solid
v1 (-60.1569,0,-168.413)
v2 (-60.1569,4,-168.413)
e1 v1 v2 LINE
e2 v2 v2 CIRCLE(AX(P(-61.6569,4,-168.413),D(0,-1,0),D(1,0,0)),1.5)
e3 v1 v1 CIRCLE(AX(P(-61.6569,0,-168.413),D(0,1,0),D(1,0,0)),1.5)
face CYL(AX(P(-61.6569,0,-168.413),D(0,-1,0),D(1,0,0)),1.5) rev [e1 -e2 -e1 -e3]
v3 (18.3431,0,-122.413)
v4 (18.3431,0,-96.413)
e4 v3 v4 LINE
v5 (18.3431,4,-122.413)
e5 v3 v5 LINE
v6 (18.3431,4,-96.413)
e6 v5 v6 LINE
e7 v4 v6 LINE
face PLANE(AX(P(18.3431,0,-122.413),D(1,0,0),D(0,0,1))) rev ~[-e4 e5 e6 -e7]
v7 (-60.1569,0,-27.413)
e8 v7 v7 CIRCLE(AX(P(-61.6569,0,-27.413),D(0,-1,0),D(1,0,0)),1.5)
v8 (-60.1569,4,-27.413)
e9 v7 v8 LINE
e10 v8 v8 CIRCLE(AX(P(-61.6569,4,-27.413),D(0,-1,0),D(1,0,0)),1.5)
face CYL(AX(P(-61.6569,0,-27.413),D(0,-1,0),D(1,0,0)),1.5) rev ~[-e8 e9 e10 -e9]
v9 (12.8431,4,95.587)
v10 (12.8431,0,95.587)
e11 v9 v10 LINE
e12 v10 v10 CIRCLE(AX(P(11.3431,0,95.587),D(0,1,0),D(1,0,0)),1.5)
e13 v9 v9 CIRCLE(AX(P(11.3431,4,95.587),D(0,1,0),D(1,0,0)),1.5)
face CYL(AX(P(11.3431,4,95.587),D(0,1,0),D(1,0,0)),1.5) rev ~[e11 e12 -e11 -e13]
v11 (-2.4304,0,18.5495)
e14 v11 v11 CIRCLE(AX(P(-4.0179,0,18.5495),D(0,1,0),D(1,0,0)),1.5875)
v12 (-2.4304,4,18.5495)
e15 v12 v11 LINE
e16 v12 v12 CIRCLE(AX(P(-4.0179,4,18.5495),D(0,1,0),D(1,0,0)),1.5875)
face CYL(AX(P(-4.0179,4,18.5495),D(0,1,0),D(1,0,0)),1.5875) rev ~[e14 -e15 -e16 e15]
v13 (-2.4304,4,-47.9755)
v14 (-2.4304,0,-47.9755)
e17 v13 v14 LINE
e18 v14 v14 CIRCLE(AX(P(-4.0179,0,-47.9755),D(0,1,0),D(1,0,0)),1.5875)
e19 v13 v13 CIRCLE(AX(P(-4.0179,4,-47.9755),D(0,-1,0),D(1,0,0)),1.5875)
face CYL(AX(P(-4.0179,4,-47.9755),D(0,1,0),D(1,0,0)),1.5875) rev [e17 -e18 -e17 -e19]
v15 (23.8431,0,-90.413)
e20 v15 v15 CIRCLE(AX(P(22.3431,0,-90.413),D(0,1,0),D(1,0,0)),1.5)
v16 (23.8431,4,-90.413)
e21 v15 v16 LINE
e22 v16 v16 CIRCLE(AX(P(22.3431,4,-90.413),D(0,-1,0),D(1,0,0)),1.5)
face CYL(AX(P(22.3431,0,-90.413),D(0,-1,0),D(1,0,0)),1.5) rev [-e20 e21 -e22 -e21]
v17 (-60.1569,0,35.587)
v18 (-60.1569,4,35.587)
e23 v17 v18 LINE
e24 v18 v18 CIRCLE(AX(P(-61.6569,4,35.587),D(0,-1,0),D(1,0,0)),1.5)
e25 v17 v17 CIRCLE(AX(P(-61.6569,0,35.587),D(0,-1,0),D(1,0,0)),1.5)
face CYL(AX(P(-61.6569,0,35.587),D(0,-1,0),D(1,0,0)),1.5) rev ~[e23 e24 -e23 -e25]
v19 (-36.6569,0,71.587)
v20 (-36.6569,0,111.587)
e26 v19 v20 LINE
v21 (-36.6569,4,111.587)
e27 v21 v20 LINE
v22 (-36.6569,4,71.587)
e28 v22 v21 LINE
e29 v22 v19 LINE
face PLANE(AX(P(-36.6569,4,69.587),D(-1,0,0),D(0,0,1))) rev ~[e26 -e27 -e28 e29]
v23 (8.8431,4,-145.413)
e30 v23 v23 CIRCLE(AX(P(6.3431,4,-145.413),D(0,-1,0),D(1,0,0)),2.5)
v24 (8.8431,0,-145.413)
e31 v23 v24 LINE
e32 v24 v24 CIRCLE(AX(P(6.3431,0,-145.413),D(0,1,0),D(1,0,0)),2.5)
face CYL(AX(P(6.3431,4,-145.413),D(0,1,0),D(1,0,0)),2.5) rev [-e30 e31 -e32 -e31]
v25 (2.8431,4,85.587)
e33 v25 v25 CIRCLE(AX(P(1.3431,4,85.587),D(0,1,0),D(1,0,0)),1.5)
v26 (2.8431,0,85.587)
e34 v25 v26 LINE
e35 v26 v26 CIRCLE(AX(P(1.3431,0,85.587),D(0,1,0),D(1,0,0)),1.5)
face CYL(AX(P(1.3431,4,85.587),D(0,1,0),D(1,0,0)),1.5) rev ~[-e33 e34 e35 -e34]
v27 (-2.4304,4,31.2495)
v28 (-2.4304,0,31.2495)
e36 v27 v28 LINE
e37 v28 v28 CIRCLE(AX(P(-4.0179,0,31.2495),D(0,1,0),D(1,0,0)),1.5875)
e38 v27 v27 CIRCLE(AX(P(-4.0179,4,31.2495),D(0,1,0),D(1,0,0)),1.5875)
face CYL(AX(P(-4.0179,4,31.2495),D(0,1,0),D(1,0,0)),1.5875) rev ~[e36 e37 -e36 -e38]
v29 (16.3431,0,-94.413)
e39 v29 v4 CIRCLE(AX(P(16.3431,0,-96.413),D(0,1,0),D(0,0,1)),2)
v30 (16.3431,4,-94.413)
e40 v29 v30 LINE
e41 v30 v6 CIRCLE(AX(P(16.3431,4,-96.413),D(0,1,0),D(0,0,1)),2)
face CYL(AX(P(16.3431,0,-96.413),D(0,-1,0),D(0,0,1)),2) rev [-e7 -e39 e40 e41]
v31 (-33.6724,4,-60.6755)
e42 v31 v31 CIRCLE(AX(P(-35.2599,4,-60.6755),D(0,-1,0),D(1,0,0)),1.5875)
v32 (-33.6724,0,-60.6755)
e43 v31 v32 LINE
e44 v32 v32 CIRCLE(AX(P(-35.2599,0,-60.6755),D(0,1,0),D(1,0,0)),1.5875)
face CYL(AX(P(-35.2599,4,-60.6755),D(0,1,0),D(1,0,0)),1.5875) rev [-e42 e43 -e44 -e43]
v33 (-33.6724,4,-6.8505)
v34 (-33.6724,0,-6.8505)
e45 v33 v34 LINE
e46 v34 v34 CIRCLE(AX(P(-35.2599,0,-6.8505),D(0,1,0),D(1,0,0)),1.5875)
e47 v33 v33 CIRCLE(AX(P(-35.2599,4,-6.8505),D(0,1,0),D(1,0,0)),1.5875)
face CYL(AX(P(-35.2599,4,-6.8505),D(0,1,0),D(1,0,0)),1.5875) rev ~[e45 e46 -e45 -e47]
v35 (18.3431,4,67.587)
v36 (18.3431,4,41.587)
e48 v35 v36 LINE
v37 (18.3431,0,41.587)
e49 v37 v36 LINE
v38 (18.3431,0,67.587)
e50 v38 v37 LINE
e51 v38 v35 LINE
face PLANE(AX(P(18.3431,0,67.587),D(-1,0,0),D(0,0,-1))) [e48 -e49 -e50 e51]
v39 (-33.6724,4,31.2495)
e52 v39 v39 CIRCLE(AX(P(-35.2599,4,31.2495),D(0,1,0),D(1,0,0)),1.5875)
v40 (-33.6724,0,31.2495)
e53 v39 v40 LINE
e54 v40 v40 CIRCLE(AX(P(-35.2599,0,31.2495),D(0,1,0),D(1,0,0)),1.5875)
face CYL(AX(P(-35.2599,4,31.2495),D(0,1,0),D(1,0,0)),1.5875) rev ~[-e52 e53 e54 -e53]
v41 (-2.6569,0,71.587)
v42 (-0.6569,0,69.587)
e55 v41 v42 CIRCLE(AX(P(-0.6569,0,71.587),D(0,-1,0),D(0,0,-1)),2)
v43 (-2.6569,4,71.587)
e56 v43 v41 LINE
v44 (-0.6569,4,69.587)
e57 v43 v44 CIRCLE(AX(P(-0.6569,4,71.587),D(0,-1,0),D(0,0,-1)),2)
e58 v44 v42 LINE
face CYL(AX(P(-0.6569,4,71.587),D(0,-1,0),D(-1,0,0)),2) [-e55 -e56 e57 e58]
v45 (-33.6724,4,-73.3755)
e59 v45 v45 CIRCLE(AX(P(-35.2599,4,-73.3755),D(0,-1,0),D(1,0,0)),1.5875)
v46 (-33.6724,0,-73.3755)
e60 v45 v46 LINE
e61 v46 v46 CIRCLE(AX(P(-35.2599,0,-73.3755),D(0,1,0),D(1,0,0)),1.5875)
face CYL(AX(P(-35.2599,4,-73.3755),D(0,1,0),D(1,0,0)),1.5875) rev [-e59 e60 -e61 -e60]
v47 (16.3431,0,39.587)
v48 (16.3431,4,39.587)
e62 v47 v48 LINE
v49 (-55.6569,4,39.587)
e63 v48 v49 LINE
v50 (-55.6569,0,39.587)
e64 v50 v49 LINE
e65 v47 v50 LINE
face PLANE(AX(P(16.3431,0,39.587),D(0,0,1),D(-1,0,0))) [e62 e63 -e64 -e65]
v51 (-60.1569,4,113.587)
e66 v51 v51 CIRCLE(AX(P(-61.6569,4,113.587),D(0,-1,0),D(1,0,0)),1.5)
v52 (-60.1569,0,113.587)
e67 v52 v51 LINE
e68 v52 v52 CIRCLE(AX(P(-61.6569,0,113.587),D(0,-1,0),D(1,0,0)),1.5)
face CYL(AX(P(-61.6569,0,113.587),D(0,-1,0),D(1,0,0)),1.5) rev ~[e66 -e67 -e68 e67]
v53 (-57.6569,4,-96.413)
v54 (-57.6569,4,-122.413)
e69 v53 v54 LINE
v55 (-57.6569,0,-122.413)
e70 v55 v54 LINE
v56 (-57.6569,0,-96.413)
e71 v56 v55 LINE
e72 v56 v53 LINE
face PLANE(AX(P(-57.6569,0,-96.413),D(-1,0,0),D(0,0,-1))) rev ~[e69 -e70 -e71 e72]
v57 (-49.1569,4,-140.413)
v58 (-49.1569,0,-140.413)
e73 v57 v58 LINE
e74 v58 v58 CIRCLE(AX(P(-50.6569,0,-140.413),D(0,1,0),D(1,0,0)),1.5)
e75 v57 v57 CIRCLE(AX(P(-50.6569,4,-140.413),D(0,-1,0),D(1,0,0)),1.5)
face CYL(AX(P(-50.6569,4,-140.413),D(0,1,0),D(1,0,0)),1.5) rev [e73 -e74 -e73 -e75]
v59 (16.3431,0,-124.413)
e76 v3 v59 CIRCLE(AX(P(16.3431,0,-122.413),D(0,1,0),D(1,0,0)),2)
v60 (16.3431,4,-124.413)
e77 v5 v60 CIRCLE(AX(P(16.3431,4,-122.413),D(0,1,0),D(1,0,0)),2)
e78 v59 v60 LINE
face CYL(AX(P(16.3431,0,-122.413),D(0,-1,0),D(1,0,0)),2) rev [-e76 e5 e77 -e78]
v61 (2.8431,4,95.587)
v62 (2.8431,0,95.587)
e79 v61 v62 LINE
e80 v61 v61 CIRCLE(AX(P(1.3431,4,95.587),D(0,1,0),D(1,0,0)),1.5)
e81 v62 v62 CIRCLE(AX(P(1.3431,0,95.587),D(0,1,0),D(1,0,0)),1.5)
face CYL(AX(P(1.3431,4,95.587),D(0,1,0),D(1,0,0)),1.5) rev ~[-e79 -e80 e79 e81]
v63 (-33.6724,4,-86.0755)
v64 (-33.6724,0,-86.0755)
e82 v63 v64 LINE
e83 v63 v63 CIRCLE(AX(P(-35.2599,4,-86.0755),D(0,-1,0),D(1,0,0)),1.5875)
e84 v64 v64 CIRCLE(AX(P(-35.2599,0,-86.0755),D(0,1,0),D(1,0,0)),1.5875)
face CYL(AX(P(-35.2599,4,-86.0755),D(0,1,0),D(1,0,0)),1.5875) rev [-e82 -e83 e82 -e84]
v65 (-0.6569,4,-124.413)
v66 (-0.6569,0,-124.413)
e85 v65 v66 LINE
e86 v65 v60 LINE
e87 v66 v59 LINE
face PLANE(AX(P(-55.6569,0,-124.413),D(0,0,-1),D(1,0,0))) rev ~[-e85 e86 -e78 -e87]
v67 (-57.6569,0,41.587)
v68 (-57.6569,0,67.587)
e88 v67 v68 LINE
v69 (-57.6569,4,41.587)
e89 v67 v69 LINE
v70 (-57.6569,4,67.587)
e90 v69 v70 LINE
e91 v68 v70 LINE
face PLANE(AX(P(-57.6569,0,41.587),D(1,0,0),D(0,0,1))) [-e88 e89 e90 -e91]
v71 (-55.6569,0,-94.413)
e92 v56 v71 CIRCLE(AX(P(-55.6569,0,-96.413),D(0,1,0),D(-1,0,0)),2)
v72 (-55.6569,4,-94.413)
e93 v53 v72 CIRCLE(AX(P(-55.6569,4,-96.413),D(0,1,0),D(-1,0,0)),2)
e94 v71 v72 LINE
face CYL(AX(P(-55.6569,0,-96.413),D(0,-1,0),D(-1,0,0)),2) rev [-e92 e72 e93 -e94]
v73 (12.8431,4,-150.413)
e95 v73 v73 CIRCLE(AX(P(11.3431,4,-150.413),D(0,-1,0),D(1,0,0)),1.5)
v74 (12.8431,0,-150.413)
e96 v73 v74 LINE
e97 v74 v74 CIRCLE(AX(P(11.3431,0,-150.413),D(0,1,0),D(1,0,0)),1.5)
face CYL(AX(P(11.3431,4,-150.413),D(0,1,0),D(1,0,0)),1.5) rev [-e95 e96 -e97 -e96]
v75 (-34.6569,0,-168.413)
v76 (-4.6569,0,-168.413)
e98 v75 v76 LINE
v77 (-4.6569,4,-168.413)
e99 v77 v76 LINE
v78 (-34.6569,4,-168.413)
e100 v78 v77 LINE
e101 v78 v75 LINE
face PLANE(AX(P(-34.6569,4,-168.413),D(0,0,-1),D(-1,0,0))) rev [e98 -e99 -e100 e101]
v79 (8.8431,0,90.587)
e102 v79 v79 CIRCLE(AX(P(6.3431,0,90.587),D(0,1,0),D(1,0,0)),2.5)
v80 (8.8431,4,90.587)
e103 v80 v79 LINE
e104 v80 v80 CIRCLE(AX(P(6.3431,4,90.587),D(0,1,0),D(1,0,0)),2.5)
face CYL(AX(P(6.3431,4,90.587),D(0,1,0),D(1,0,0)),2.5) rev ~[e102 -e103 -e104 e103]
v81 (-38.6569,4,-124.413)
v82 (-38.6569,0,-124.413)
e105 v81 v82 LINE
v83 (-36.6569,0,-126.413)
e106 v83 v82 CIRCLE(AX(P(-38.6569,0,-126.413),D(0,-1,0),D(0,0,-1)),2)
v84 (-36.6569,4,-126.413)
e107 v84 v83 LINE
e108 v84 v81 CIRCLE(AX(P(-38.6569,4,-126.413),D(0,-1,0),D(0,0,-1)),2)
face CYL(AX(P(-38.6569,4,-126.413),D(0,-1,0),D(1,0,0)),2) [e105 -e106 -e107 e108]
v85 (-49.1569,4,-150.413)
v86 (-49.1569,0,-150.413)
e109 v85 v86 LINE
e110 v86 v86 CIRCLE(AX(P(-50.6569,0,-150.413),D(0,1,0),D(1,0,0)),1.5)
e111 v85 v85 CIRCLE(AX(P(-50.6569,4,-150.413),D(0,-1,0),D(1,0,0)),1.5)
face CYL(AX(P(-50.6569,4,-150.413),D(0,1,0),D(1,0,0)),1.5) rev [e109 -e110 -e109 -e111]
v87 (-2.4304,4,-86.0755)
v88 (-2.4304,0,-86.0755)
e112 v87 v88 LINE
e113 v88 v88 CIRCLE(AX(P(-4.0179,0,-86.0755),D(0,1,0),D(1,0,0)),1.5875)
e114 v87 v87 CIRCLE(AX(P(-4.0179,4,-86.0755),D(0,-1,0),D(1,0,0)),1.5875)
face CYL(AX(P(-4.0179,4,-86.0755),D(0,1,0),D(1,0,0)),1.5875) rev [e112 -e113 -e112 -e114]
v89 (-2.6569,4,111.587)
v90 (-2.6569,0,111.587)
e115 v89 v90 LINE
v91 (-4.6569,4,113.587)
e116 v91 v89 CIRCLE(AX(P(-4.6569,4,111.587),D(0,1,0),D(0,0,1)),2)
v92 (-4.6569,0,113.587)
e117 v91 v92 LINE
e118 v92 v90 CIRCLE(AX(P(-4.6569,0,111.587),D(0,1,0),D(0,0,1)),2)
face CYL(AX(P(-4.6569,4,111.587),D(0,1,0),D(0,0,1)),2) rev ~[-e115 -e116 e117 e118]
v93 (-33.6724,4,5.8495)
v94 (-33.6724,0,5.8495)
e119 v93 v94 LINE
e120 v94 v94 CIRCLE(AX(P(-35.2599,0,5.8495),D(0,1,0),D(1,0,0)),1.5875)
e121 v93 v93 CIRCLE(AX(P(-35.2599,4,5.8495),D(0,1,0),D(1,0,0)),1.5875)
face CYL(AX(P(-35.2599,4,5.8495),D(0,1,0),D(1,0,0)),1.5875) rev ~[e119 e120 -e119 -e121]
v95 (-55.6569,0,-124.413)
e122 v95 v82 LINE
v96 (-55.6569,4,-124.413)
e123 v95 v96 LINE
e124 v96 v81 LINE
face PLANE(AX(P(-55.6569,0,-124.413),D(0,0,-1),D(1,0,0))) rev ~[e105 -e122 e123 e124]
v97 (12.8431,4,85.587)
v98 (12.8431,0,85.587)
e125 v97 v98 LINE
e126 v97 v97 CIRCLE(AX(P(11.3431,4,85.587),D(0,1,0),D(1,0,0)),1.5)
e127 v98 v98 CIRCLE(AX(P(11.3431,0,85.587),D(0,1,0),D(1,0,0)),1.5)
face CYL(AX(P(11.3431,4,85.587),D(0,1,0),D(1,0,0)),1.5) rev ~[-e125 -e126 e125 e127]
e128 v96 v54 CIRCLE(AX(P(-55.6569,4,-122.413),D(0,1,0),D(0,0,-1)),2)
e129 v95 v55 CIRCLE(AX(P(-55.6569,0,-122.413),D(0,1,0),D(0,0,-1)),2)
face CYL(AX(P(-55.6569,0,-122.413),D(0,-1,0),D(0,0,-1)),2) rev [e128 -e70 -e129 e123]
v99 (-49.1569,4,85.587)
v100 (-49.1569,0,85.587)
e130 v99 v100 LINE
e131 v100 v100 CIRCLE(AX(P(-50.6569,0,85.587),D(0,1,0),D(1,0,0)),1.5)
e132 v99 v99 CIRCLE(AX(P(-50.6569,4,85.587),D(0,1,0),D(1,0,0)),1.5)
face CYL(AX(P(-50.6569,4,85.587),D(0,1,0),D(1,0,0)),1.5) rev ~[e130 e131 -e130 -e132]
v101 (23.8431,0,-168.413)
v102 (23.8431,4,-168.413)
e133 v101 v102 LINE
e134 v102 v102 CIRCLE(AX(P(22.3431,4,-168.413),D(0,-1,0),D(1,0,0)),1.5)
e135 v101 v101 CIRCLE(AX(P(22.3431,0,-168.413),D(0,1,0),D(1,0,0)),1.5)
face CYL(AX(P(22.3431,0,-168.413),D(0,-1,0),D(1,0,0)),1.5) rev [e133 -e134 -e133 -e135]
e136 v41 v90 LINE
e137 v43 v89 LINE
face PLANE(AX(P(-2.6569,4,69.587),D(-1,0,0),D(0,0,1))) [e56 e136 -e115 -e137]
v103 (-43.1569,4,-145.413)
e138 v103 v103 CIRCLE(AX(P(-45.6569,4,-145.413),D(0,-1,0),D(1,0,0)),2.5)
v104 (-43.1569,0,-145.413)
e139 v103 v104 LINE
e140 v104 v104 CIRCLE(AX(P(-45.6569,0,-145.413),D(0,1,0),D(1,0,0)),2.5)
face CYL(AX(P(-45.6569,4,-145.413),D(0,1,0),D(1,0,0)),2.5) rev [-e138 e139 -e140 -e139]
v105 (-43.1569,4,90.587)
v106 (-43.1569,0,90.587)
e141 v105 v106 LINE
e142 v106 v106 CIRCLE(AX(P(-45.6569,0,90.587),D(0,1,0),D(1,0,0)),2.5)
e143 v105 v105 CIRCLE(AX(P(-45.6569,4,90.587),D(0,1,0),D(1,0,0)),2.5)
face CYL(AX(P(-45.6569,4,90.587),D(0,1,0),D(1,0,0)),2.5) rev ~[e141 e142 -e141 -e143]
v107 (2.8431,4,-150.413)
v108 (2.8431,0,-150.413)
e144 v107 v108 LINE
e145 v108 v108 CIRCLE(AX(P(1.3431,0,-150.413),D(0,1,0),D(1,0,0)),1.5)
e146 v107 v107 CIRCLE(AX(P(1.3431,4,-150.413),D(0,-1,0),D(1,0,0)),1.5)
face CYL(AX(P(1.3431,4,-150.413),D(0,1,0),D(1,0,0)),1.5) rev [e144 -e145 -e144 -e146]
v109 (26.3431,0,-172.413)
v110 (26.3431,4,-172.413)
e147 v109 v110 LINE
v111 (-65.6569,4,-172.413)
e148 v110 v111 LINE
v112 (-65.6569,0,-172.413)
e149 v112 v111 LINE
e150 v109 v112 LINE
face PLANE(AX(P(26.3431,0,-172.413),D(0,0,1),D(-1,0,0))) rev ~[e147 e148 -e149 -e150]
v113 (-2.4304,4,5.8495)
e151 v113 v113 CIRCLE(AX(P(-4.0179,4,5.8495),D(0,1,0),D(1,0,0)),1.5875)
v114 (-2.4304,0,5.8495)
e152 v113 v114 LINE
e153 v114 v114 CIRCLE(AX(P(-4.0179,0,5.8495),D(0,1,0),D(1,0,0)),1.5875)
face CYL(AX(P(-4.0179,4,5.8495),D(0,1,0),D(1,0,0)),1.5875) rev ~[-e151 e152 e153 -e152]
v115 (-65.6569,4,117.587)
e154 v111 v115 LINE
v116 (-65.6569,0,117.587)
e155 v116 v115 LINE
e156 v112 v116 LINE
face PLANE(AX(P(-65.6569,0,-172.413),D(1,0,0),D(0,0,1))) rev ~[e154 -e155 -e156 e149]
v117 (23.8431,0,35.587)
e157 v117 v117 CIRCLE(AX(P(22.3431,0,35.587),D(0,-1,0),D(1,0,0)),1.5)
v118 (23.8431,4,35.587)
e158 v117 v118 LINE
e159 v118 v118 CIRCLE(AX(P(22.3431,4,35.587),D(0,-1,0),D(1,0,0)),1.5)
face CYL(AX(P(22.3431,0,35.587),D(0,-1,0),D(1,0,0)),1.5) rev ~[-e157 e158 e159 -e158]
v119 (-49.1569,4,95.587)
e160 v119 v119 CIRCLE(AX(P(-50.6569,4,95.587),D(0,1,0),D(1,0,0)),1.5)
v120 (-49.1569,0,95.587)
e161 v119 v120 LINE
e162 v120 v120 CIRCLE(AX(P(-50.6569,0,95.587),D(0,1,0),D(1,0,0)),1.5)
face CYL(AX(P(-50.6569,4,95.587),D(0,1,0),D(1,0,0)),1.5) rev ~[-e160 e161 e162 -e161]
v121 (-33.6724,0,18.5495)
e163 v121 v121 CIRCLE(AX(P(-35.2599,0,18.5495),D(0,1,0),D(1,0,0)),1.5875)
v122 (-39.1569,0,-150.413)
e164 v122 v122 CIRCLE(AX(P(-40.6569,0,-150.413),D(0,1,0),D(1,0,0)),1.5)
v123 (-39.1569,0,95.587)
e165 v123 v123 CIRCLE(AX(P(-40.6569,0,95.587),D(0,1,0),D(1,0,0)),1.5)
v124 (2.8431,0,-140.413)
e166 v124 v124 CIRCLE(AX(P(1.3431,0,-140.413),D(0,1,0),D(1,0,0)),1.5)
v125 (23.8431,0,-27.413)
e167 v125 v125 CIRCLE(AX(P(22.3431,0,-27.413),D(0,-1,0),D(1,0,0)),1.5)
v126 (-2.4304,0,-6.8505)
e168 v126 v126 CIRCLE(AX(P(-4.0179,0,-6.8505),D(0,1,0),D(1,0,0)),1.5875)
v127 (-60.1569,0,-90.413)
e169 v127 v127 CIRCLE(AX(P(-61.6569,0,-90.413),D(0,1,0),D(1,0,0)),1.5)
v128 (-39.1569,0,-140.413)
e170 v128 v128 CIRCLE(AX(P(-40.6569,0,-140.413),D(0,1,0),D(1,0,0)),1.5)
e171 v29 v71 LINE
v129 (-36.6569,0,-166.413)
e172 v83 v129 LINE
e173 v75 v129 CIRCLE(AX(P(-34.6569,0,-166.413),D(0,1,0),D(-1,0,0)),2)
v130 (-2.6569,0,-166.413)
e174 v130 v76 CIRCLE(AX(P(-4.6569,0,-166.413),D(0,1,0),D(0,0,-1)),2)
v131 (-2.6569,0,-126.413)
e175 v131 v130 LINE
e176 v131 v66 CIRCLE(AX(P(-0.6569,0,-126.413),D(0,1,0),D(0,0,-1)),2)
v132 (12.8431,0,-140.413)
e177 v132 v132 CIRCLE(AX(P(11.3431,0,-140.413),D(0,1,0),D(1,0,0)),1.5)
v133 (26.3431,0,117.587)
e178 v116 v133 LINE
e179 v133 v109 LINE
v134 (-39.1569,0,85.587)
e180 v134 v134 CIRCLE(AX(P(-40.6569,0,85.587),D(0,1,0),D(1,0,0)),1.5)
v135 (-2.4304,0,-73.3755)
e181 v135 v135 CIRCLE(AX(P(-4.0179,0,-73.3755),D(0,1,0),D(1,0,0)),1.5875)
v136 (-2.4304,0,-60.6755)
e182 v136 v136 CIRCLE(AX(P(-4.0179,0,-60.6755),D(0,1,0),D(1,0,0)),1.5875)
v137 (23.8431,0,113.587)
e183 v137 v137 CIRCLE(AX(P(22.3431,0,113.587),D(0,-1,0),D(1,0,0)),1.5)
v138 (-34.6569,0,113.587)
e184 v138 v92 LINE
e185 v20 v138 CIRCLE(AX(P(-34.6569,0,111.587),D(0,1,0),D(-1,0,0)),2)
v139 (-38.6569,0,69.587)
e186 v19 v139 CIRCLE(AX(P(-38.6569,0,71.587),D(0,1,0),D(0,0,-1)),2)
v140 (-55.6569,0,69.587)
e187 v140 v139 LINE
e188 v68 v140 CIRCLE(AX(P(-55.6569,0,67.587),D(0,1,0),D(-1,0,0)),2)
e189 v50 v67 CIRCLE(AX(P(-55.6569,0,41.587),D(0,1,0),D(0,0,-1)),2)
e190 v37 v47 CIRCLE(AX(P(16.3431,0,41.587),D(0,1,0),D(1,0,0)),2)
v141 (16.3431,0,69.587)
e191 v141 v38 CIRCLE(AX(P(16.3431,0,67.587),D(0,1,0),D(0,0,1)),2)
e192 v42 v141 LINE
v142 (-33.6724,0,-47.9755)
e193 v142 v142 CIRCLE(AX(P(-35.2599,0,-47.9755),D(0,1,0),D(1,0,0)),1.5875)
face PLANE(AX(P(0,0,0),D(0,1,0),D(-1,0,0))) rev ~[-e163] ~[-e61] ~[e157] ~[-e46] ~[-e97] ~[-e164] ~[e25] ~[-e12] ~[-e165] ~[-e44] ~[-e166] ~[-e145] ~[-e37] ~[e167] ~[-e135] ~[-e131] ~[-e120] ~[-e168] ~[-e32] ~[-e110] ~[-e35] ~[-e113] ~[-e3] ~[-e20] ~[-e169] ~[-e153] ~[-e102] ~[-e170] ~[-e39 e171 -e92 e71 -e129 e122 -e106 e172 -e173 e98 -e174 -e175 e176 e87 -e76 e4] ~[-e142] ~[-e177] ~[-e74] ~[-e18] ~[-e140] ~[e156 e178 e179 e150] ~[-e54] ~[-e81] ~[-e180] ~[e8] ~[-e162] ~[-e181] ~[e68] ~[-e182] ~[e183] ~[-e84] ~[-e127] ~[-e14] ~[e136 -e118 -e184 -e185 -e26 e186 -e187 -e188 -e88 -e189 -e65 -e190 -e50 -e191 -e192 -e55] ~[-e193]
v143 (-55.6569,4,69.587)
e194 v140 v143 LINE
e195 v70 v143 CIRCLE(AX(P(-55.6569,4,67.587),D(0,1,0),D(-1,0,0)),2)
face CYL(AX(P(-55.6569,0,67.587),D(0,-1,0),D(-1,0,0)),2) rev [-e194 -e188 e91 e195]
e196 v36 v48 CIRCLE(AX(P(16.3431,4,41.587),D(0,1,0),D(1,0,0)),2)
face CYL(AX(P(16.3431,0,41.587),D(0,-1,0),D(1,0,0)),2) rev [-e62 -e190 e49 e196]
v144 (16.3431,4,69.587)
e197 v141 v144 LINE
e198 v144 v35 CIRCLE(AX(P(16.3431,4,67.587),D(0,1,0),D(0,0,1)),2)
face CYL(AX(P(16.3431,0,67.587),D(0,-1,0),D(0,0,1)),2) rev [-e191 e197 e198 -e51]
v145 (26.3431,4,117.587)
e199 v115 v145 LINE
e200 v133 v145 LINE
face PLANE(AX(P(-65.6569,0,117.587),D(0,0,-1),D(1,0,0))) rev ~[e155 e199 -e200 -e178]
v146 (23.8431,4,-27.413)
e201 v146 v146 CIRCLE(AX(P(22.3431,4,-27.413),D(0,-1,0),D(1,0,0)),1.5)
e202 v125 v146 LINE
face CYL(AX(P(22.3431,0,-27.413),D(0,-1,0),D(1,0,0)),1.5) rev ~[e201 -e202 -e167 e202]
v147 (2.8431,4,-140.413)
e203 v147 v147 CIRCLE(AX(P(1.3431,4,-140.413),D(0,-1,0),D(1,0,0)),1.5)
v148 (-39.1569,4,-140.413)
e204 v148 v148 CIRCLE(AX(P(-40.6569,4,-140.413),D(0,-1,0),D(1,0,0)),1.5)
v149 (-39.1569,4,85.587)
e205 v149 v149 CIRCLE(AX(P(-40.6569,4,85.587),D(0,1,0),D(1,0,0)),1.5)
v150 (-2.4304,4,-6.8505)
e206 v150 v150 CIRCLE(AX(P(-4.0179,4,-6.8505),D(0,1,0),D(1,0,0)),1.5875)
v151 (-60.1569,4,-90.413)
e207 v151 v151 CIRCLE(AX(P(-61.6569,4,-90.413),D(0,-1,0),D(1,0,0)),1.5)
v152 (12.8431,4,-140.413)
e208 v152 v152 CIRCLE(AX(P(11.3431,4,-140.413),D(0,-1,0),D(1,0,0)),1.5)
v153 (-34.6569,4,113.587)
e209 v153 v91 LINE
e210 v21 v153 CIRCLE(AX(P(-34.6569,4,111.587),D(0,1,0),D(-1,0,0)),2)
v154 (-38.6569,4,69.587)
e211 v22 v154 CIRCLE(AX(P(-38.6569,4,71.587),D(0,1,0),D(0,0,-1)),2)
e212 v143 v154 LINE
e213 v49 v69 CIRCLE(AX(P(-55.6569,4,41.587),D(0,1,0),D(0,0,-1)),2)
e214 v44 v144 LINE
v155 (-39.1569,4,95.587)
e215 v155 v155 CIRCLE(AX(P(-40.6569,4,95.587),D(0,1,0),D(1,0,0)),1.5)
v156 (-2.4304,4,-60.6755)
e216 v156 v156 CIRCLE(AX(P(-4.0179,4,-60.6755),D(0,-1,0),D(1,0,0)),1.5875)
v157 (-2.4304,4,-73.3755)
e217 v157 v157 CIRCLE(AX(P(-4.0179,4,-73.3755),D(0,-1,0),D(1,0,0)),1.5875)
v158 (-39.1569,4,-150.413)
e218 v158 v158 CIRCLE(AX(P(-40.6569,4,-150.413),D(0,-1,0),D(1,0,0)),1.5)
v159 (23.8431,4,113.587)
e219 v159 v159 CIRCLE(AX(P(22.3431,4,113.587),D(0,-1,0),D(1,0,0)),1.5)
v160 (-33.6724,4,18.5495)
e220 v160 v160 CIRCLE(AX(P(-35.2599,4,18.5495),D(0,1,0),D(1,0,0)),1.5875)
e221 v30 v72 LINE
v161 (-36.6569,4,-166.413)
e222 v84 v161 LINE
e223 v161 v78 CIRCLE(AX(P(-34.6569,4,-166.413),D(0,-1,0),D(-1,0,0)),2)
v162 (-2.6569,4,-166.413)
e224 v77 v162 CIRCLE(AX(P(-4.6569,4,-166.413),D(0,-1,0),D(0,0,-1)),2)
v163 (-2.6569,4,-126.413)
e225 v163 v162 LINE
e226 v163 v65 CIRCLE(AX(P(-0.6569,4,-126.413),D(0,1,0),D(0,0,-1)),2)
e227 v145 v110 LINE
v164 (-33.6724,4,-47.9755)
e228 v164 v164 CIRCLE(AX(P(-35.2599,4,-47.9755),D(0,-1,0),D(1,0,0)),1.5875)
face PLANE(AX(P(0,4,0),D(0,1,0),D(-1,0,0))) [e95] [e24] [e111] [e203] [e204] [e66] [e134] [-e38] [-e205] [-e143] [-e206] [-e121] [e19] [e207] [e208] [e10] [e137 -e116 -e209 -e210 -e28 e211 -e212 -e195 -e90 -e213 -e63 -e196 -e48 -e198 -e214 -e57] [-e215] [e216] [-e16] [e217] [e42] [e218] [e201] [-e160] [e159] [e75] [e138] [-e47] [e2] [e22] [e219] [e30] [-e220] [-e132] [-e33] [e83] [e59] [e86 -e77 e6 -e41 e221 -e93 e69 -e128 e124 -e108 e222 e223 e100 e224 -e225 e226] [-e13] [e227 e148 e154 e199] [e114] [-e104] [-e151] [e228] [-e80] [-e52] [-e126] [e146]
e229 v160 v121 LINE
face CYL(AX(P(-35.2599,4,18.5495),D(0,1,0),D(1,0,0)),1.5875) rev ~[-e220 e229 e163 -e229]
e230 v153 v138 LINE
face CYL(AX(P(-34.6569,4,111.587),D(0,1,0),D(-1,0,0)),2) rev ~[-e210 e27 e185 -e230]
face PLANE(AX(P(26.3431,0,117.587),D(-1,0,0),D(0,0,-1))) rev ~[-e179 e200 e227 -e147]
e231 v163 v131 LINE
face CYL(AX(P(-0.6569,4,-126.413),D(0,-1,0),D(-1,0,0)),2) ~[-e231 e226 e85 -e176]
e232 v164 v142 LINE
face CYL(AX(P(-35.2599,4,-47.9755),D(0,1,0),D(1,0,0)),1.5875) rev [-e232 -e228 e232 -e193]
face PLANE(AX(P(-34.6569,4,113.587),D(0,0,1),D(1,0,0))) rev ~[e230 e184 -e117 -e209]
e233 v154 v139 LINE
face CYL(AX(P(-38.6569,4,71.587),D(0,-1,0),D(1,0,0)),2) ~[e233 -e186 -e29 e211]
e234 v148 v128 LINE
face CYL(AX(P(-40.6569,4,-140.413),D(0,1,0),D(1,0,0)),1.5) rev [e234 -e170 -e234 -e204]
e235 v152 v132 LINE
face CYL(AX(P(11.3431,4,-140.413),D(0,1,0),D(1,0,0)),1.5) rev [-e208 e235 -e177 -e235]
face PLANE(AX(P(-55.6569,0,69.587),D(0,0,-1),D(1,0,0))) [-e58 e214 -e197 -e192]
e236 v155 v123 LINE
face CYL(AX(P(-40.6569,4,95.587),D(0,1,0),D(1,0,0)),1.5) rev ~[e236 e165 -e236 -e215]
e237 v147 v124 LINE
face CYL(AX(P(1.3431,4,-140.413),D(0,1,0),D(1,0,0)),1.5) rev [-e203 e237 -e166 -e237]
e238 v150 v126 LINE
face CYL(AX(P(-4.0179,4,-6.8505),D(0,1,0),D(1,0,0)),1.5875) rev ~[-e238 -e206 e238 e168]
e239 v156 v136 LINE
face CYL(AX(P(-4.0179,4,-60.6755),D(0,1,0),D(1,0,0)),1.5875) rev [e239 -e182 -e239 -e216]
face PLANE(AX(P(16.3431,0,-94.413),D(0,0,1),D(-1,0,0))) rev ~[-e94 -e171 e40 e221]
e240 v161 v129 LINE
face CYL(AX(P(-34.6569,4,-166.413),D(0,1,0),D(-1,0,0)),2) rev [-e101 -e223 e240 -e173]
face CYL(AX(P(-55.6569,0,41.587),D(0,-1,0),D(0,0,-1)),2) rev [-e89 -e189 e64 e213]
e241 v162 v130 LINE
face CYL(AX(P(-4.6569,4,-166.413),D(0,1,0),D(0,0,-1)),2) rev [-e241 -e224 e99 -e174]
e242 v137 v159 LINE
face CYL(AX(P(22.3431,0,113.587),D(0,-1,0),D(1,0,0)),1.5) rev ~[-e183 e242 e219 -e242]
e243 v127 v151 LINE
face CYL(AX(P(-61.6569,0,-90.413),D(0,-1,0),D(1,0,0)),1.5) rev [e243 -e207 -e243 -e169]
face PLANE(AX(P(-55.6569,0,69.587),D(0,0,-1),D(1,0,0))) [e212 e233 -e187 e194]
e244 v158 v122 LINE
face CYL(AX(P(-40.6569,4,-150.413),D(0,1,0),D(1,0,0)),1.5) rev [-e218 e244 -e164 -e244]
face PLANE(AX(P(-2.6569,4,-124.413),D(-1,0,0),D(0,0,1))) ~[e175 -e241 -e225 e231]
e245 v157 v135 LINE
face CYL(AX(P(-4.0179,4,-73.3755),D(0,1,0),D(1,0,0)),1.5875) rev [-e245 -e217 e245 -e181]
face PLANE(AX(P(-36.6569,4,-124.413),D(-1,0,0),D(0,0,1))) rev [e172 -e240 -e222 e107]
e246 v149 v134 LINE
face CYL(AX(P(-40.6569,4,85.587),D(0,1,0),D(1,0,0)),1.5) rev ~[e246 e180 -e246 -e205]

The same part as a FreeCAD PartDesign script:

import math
import FreeCAD as App
import Part
import Sketcher


def edges_at(feature, points):
    """Names of the edges that pass closest to the given points."""
    edges = feature.Shape.Edges
    near = lambda p: min(range(len(edges)), key=lambda i: edges[i].distToShape(Part.Vertex(*p))[0])
    return sorted({f"Edge{near(p) + 1}" for p in points})


def add_polygon(sketch, points):
    """Adds a closed chain of lines whose ends are joined by coincident constraints."""
    first, n = sketch.GeometryCount, len(points)
    for a, b in zip(points, points[1:] + points[:1]):
        sketch.addGeometry(Part.LineSegment(App.Vector(*a, 0), App.Vector(*b, 0)), False)
    for i in range(n):
        sketch.addConstraint(Sketcher.Constraint("Coincident", first + i, 2, first + (i + 1) % n, 1))

doc = App.newDocument("Part")
params = doc.addObject("Spreadsheet::Sheet", "Params")
for row, (alias, value) in enumerate([
    ("sketch1_radius", "2 mm"),
    ("sketch1_width", "92 mm"),
    ("sketch1_height", "290 mm"),
    ("pad1_length", "4 mm"),
    ("sketch3_radius", "2 mm"),
    ("sketch3_width", "34 mm"),
    ("sketch3_height", "42 mm"),
    ("sketch4_diameter", "3 mm"),
    ("sketch5_diameter", "3 mm"),
    ("sketch5_diameter2", "5 mm"),
    ("fillet_radius", "2 mm"),
    ("fillet2_radius", "2 mm"),
    ("fillet3_radius", "2 mm"),
    ("fillet4_radius", "2 mm"),
], start=1):
    params.set(f"A{row}", alias)
    params.set(f"B{row}", "=" + value)
    params.setAlias(f"B{row}", alias)

body = doc.addObject("PartDesign::Body", "Body")

# Sketch on XZ plane
sketch1 = body.newObject("Sketcher::SketchObject", "Sketch")
sketch1.AttachmentSupport = (doc.getObject("XZ_Plane"), [""])
sketch1.MapMode = "FlatFace"
add_polygon(sketch1, [(-65.7, -172.4), (-65.7, 117.6), (26.3, 117.6), (26.3, -172.4)])  # lines 0-3
sketch1.addGeometry(Part.ArcOfCircle(Part.Circle(App.Vector(-55.7, -122.4, 0), App.Vector(0, 0, 1), 2), math.radians(180), math.radians(270)), False)  # 4
sketch1.addGeometry(Part.LineSegment(App.Vector(-55.7, -124.4, 0), App.Vector(16.3, -124.4, 0)), False)  # 5
sketch1.addGeometry(Part.ArcOfCircle(Part.Circle(App.Vector(16.3, -122.4, 0), App.Vector(0, 0, 1), 2), math.radians(-90), math.radians(0)), False)  # 6
sketch1.addGeometry(Part.LineSegment(App.Vector(18.3, -122.4, 0), App.Vector(18.3, -96.4, 0)), False)  # 7
sketch1.addGeometry(Part.ArcOfCircle(Part.Circle(App.Vector(16.3, -96.4, 0), App.Vector(0, 0, 1), 2), math.radians(0), math.radians(90)), False)  # 8
sketch1.addGeometry(Part.LineSegment(App.Vector(16.3, -94.4, 0), App.Vector(-55.7, -94.4, 0)), False)  # 9
sketch1.addGeometry(Part.ArcOfCircle(Part.Circle(App.Vector(-55.7, -96.4, 0), App.Vector(0, 0, 1), 2), math.radians(90), math.radians(180)), False)  # 10
sketch1.addGeometry(Part.LineSegment(App.Vector(-57.7, -96.4, 0), App.Vector(-57.7, -122.4, 0)), False)  # 11
sketch1.addGeometry(Part.LineSegment(App.Vector(16.3, 69.6, 0), App.Vector(-55.7, 69.6, 0)), False)  # 12
sketch1.addGeometry(Part.ArcOfCircle(Part.Circle(App.Vector(-55.7, 67.6, 0), App.Vector(0, 0, 1), 2), math.radians(90), math.radians(180)), False)  # 13
sketch1.addGeometry(Part.LineSegment(App.Vector(-57.7, 67.6, 0), App.Vector(-57.7, 41.6, 0)), False)  # 14
sketch1.addGeometry(Part.ArcOfCircle(Part.Circle(App.Vector(-55.7, 41.6, 0), App.Vector(0, 0, 1), 2), math.radians(180), math.radians(270)), False)  # 15
sketch1.addGeometry(Part.LineSegment(App.Vector(-55.7, 39.6, 0), App.Vector(16.3, 39.6, 0)), False)  # 16
sketch1.addGeometry(Part.ArcOfCircle(Part.Circle(App.Vector(16.3, 41.6, 0), App.Vector(0, 0, 1), 2), math.radians(-90), math.radians(0)), False)  # 17
sketch1.addGeometry(Part.LineSegment(App.Vector(18.3, 41.6, 0), App.Vector(18.3, 67.6, 0)), False)  # 18
sketch1.addGeometry(Part.ArcOfCircle(Part.Circle(App.Vector(16.3, 67.6, 0), App.Vector(0, 0, 1), 2), math.radians(0), math.radians(90)), False)  # 19
sketch1.addConstraint(Sketcher.Constraint("Tangent", 4, 2, 5, 1))
sketch1.addConstraint(Sketcher.Constraint("Tangent", 5, 2, 6, 1))
sketch1.addConstraint(Sketcher.Constraint("Tangent", 6, 2, 7, 1))
sketch1.addConstraint(Sketcher.Constraint("Tangent", 7, 2, 8, 1))
sketch1.addConstraint(Sketcher.Constraint("Tangent", 8, 2, 9, 1))
sketch1.addConstraint(Sketcher.Constraint("Tangent", 9, 2, 10, 1))
sketch1.addConstraint(Sketcher.Constraint("Tangent", 10, 2, 11, 1))
sketch1.addConstraint(Sketcher.Constraint("Tangent", 11, 2, 4, 1))
sketch1.addConstraint(Sketcher.Constraint("Tangent", 12, 2, 13, 1))
sketch1.addConstraint(Sketcher.Constraint("Tangent", 13, 2, 14, 1))
sketch1.addConstraint(Sketcher.Constraint("Tangent", 14, 2, 15, 1))
sketch1.addConstraint(Sketcher.Constraint("Tangent", 15, 2, 16, 1))
sketch1.addConstraint(Sketcher.Constraint("Tangent", 16, 2, 17, 1))
sketch1.addConstraint(Sketcher.Constraint("Tangent", 17, 2, 18, 1))
sketch1.addConstraint(Sketcher.Constraint("Tangent", 18, 2, 19, 1))
sketch1.addConstraint(Sketcher.Constraint("Tangent", 19, 2, 12, 1))
sketch1.addConstraint(Sketcher.Constraint("Vertical", 0))
sketch1.addConstraint(Sketcher.Constraint("Horizontal", 1))
sketch1.addConstraint(Sketcher.Constraint("Vertical", 2))
sketch1.addConstraint(Sketcher.Constraint("Horizontal", 3))
sketch1.addConstraint(Sketcher.Constraint("Horizontal", 5))
sketch1.addConstraint(Sketcher.Constraint("Vertical", 7))
sketch1.addConstraint(Sketcher.Constraint("Horizontal", 9))
sketch1.addConstraint(Sketcher.Constraint("Vertical", 11))
sketch1.addConstraint(Sketcher.Constraint("Horizontal", 12))
sketch1.addConstraint(Sketcher.Constraint("Vertical", 14))
sketch1.addConstraint(Sketcher.Constraint("Horizontal", 16))
sketch1.addConstraint(Sketcher.Constraint("Vertical", 18))
sketch1.addConstraint(Sketcher.Constraint("Equal", 4, 6))
sketch1.addConstraint(Sketcher.Constraint("Equal", 6, 8))
sketch1.addConstraint(Sketcher.Constraint("Equal", 8, 10))
sketch1.addConstraint(Sketcher.Constraint("Equal", 10, 13))
sketch1.addConstraint(Sketcher.Constraint("Equal", 13, 15))
sketch1.addConstraint(Sketcher.Constraint("Equal", 15, 17))
sketch1.addConstraint(Sketcher.Constraint("Equal", 17, 19))
sketch1.addConstraint(Sketcher.Constraint("Vertical", 10, 3, 13, 3))
sketch1.addConstraint(Sketcher.Constraint("Vertical", 8, 3, 17, 3))
sketch1.addConstraint(Sketcher.Constraint("Equal", 11, 14))
sketch1.addConstraint(Sketcher.Constraint("Radius", 4, 2.0))
sketch1.addConstraint(Sketcher.Constraint("DistanceX", 1, 1, 1, 2, 92.0))
sketch1.addConstraint(Sketcher.Constraint("DistanceY", 0, 1, 0, 2, 290.0))
sketch1.addConstraint(Sketcher.Constraint("DistanceY", 3, 2, 4, 2, 48.0))
sketch1.addConstraint(Sketcher.Constraint("DistanceX", 6, 2, 2, 2, 8.0))
sketch1.addConstraint(Sketcher.Constraint("DistanceY", 5, 2, 8, 2, 30.0))
sketch1.addConstraint(Sketcher.Constraint("DistanceY", 12, 2, 0, 2, 48.0))
sketch1.addConstraint(Sketcher.Constraint("DistanceX", 0, 2, 13, 2, 8.0))
sketch1.addConstraint(Sketcher.Constraint("DistanceX", 4, 3, -1, 1, 55.657))
sketch1.addConstraint(Sketcher.Constraint("DistanceY", 4, 3, -1, 1, 122.413))
sketch1.setExpression("Constraints[42]", "Params.sketch1_radius")
sketch1.setExpression("Constraints[43]", "Params.sketch1_width")
sketch1.setExpression("Constraints[44]", "Params.sketch1_height")
pad1 = body.newObject("PartDesign::Pad", "Pad")
pad1.Profile = sketch1
pad1.setExpression("Length", "Params.pad1_length")
pad1.Reversed = True

# Sketch on XZ plane
sketch2 = body.newObject("Sketcher::SketchObject", "Sketch001")
sketch2.AttachmentSupport = (doc.getObject("XZ_Plane"), [""])
sketch2.MapMode = "FlatFace"
sketch2.AttachmentOffset = App.Placement(App.Vector(0, 0, -4), App.Rotation())
sketch2.addGeometry(Part.Circle(App.Vector(-35.3, 31.2, 0), App.Vector(0, 0, 1), 1.6), False)
sketch2.addGeometry(Part.Circle(App.Vector(-35.3, 18.5, 0), App.Vector(0, 0, 1), 1.6), False)
sketch2.addGeometry(Part.Circle(App.Vector(-35.3, 5.8, 0), App.Vector(0, 0, 1), 1.6), False)
sketch2.addGeometry(Part.Circle(App.Vector(-35.3, -6.9, 0), App.Vector(0, 0, 1), 1.6), False)
sketch2.addGeometry(Part.Circle(App.Vector(-4, 31.2, 0), App.Vector(0, 0, 1), 1.6), False)
sketch2.addGeometry(Part.Circle(App.Vector(-4, 18.5, 0), App.Vector(0, 0, 1), 1.6), False)
sketch2.addGeometry(Part.Circle(App.Vector(-4, 5.8, 0), App.Vector(0, 0, 1), 1.6), False)
sketch2.addGeometry(Part.Circle(App.Vector(-4, -6.9, 0), App.Vector(0, 0, 1), 1.6), False)
sketch2.addConstraint(Sketcher.Constraint("Equal", 0, 1))
sketch2.addConstraint(Sketcher.Constraint("Equal", 1, 2))
sketch2.addConstraint(Sketcher.Constraint("Equal", 2, 3))
sketch2.addConstraint(Sketcher.Constraint("Equal", 3, 4))
sketch2.addConstraint(Sketcher.Constraint("Equal", 4, 5))
sketch2.addConstraint(Sketcher.Constraint("Equal", 5, 6))
sketch2.addConstraint(Sketcher.Constraint("Equal", 6, 7))
sketch2.addConstraint(Sketcher.Constraint("Horizontal", 0, 3, 4, 3))
sketch2.addConstraint(Sketcher.Constraint("Horizontal", 1, 3, 5, 3))
sketch2.addConstraint(Sketcher.Constraint("Horizontal", 2, 3, 6, 3))
sketch2.addConstraint(Sketcher.Constraint("Horizontal", 3, 3, 7, 3))
sketch2.addConstraint(Sketcher.Constraint("Vertical", 0, 3, 1, 3))
sketch2.addConstraint(Sketcher.Constraint("Vertical", 1, 3, 2, 3))
sketch2.addConstraint(Sketcher.Constraint("Vertical", 2, 3, 3, 3))
sketch2.addConstraint(Sketcher.Constraint("Vertical", 4, 3, 5, 3))
sketch2.addConstraint(Sketcher.Constraint("Vertical", 5, 3, 6, 3))
sketch2.addConstraint(Sketcher.Constraint("Vertical", 6, 3, 7, 3))
sketch2.addConstraint(Sketcher.Constraint("Diameter", 0, 3.175))
sketch2.addConstraint(Sketcher.Constraint("DistanceY", 1, 3, 0, 3, 12.7))
sketch2.addConstraint(Sketcher.Constraint("DistanceY", 2, 3, 1, 3, 12.7))
sketch2.addConstraint(Sketcher.Constraint("DistanceY", 3, 3, 2, 3, 12.7))
sketch2.addConstraint(Sketcher.Constraint("DistanceX", 0, 3, -1, 1, 35.26))
sketch2.addConstraint(Sketcher.Constraint("DistanceX", 4, 3, -1, 1, 4.018))
sketch2.addConstraint(Sketcher.Constraint("DistanceY", -1, 1, 0, 3, 31.2495))
pocket1 = body.newObject("PartDesign::Pocket", "Pocket")
pocket1.Profile = sketch2
pocket1.Type = "ThroughAll"
pocket1.Reversed = True

# Sketch on XZ plane
sketch3 = body.newObject("Sketcher::SketchObject", "Sketch002")
sketch3.AttachmentSupport = (doc.getObject("XZ_Plane"), [""])
sketch3.MapMode = "FlatFace"
sketch3.AttachmentOffset = App.Placement(App.Vector(0, 0, -4), App.Rotation())
sketch3.addGeometry(Part.LineSegment(App.Vector(-2.7, 111.6, 0), App.Vector(-2.7, 69.6, 0)), False)
sketch3.addGeometry(Part.LineSegment(App.Vector(-2.7, 69.6, 0), App.Vector(-36.7, 69.6, 0)), False)
sketch3.addGeometry(Part.LineSegment(App.Vector(-36.7, 69.6, 0), App.Vector(-36.7, 111.6, 0)), False)
sketch3.addGeometry(Part.ArcOfCircle(Part.Circle(App.Vector(-34.7, 111.6, 0), App.Vector(0, 0, 1), 2), math.radians(90), math.radians(180)), False)
sketch3.addGeometry(Part.LineSegment(App.Vector(-34.7, 113.6, 0), App.Vector(-4.7, 113.6, 0)), False)
sketch3.addGeometry(Part.ArcOfCircle(Part.Circle(App.Vector(-4.7, 111.6, 0), App.Vector(0, 0, 1), 2), math.radians(0), math.radians(90)), False)
sketch3.addConstraint(Sketcher.Constraint("Coincident", 0, 2, 1, 1))
sketch3.addConstraint(Sketcher.Constraint("Coincident", 1, 2, 2, 1))
sketch3.addConstraint(Sketcher.Constraint("Tangent", 2, 2, 3, 2))
sketch3.addConstraint(Sketcher.Constraint("Tangent", 3, 1, 4, 1))
sketch3.addConstraint(Sketcher.Constraint("Tangent", 4, 2, 5, 2))
sketch3.addConstraint(Sketcher.Constraint("Tangent", 5, 1, 0, 1))
sketch3.addConstraint(Sketcher.Constraint("Vertical", 0))
sketch3.addConstraint(Sketcher.Constraint("Horizontal", 1))
sketch3.addConstraint(Sketcher.Constraint("Vertical", 2))
sketch3.addConstraint(Sketcher.Constraint("Horizontal", 4))
sketch3.addConstraint(Sketcher.Constraint("Equal", 3, 5))
sketch3.addConstraint(Sketcher.Constraint("Radius", 3, 2.0))
sketch3.addConstraint(Sketcher.Constraint("DistanceX", 1, 2, 1, 1, 34.0))
sketch3.addConstraint(Sketcher.Constraint("DistanceY", 0, 2, 0, 1, 42.0))
sketch3.addConstraint(Sketcher.Constraint("DistanceX", 3, 3, -1, 1, 34.657))
sketch3.addConstraint(Sketcher.Constraint("DistanceY", -1, 1, 3, 3, 111.587))
sketch3.setExpression("Constraints[11]", "Params.sketch3_radius")
sketch3.setExpression("Constraints[12]", "Params.sketch3_width")
sketch3.setExpression("Constraints[13]", "Params.sketch3_height")
pocket2 = body.newObject("PartDesign::Pocket", "Pocket001")
pocket2.Profile = sketch3
pocket2.Type = "ThroughAll"
pocket2.Reversed = True

# Sketch on XZ plane
sketch4 = body.newObject("Sketcher::SketchObject", "Sketch003")
sketch4.AttachmentSupport = (doc.getObject("XZ_Plane"), [""])
sketch4.MapMode = "FlatFace"
sketch4.addGeometry(Part.Circle(App.Vector(-61.7, 113.6, 0), App.Vector(0, 0, 1), 1.5), False)
sketch4.addGeometry(Part.Circle(App.Vector(22.3, 113.6, 0), App.Vector(0, 0, 1), 1.5), False)
sketch4.addGeometry(Part.Circle(App.Vector(22.3, 35.6, 0), App.Vector(0, 0, 1), 1.5), False)
sketch4.addGeometry(Part.Circle(App.Vector(-61.7, 35.6, 0), App.Vector(0, 0, 1), 1.5), False)
sketch4.addGeometry(Part.Circle(App.Vector(-61.7, -27.4, 0), App.Vector(0, 0, 1), 1.5), False)
sketch4.addGeometry(Part.Circle(App.Vector(22.3, -27.4, 0), App.Vector(0, 0, 1), 1.5), False)
sketch4.addConstraint(Sketcher.Constraint("Equal", 0, 1))
sketch4.addConstraint(Sketcher.Constraint("Equal", 1, 2))
sketch4.addConstraint(Sketcher.Constraint("Equal", 2, 3))
sketch4.addConstraint(Sketcher.Constraint("Equal", 3, 4))
sketch4.addConstraint(Sketcher.Constraint("Equal", 4, 5))
sketch4.addConstraint(Sketcher.Constraint("Horizontal", 0, 3, 1, 3))
sketch4.addConstraint(Sketcher.Constraint("Horizontal", 2, 3, 3, 3))
sketch4.addConstraint(Sketcher.Constraint("Horizontal", 4, 3, 5, 3))
sketch4.addConstraint(Sketcher.Constraint("Vertical", 1, 3, 2, 3))
sketch4.addConstraint(Sketcher.Constraint("Vertical", 0, 3, 3, 3))
sketch4.addConstraint(Sketcher.Constraint("Vertical", 3, 3, 4, 3))
sketch4.addConstraint(Sketcher.Constraint("Vertical", 2, 3, 5, 3))
sketch4.addConstraint(Sketcher.Constraint("Diameter", 0, 3.0))
sketch4.addConstraint(Sketcher.Constraint("DistanceX", 0, 3, 1, 3, 84.0))
sketch4.addConstraint(Sketcher.Constraint("DistanceY", 2, 3, 1, 3, 78.0))
sketch4.addConstraint(Sketcher.Constraint("DistanceY", 4, 3, 3, 3, 63.0))
sketch4.addConstraint(Sketcher.Constraint("DistanceX", 0, 3, -1, 1, 61.657))
sketch4.addConstraint(Sketcher.Constraint("DistanceY", -1, 1, 0, 3, 113.587))
sketch4.setExpression("Constraints[12]", "Params.sketch4_diameter")
pocket3 = body.newObject("PartDesign::Pocket", "Pocket002")
pocket3.Profile = sketch4
pocket3.Type = "ThroughAll"

# Sketch on XZ plane
sketch5 = body.newObject("Sketcher::SketchObject", "Sketch004")
sketch5.AttachmentSupport = (doc.getObject("XZ_Plane"), [""])
sketch5.MapMode = "FlatFace"
sketch5.AttachmentOffset = App.Placement(App.Vector(0, 0, -4), App.Rotation())
sketch5.addGeometry(Part.Circle(App.Vector(11.3, 95.6, 0), App.Vector(0, 0, 1), 1.5), False)
sketch5.addGeometry(Part.Circle(App.Vector(1.3, 95.6, 0), App.Vector(0, 0, 1), 1.5), False)
sketch5.addGeometry(Part.Circle(App.Vector(6.3, 90.6, 0), App.Vector(0, 0, 1), 2.5), False)
sketch5.addGeometry(Part.Circle(App.Vector(1.3, 85.6, 0), App.Vector(0, 0, 1), 1.5), False)
sketch5.addGeometry(Part.Circle(App.Vector(11.3, 85.6, 0), App.Vector(0, 0, 1), 1.5), False)
sketch5.addGeometry(Part.Circle(App.Vector(-50.7, 95.6, 0), App.Vector(0, 0, 1), 1.5), False)
sketch5.addGeometry(Part.Circle(App.Vector(-50.7, 85.6, 0), App.Vector(0, 0, 1), 1.5), False)
sketch5.addGeometry(Part.Circle(App.Vector(-40.7, 85.6, 0), App.Vector(0, 0, 1), 1.5), False)
sketch5.addGeometry(Part.Circle(App.Vector(-40.7, 95.6, 0), App.Vector(0, 0, 1), 1.5), False)
sketch5.addGeometry(Part.Circle(App.Vector(-45.7, 90.6, 0), App.Vector(0, 0, 1), 2.5), False)
sketch5.addConstraint(Sketcher.Constraint("Equal", 0, 1))
sketch5.addConstraint(Sketcher.Constraint("Equal", 1, 3))
sketch5.addConstraint(Sketcher.Constraint("Equal", 3, 4))
sketch5.addConstraint(Sketcher.Constraint("Equal", 4, 5))
sketch5.addConstraint(Sketcher.Constraint("Equal", 5, 6))
sketch5.addConstraint(Sketcher.Constraint("Equal", 6, 7))
sketch5.addConstraint(Sketcher.Constraint("Equal", 7, 8))
sketch5.addConstraint(Sketcher.Constraint("Equal", 2, 9))
sketch5.addConstraint(Sketcher.Constraint("Horizontal", 0, 3, 1, 3))
sketch5.addConstraint(Sketcher.Constraint("Horizontal", 3, 3, 4, 3))
sketch5.addConstraint(Sketcher.Constraint("Horizontal", 1, 3, 5, 3))
sketch5.addConstraint(Sketcher.Constraint("Horizontal", 4, 3, 6, 3))
sketch5.addConstraint(Sketcher.Constraint("Horizontal", 6, 3, 7, 3))
sketch5.addConstraint(Sketcher.Constraint("Horizontal", 5, 3, 8, 3))
sketch5.addConstraint(Sketcher.Constraint("Horizontal", 2, 3, 9, 3))
sketch5.addConstraint(Sketcher.Constraint("Vertical", 1, 3, 3, 3))
sketch5.addConstraint(Sketcher.Constraint("Vertical", 0, 3, 4, 3))
sketch5.addConstraint(Sketcher.Constraint("Vertical", 5, 3, 6, 3))
sketch5.addConstraint(Sketcher.Constraint("Vertical", 7, 3, 8, 3))
sketch5.addConstraint(Sketcher.Constraint("Diameter", 0, 3.0))
sketch5.addConstraint(Sketcher.Constraint("Diameter", 2, 5.0))
sketch5.addConstraint(Sketcher.Constraint("DistanceX", 1, 3, 0, 3, 10.0))
sketch5.addConstraint(Sketcher.Constraint("DistanceX", 2, 3, 0, 3, 5.0))
sketch5.addConstraint(Sketcher.Constraint("DistanceY", 2, 3, 0, 3, 5.0))
sketch5.addConstraint(Sketcher.Constraint("DistanceY", 3, 3, 2, 3, 5.0))
sketch5.addConstraint(Sketcher.Constraint("DistanceX", 6, 3, 7, 3, 10.0))
sketch5.addConstraint(Sketcher.Constraint("DistanceX", 5, 3, 9, 3, 5.0))
sketch5.addConstraint(Sketcher.Constraint("DistanceX", 5, 3, 1, 3, 52.0))
sketch5.addConstraint(Sketcher.Constraint("DistanceX", -1, 1, 0, 3, 11.343))
sketch5.addConstraint(Sketcher.Constraint("DistanceY", -1, 1, 0, 3, 95.587))
sketch5.setExpression("Constraints[19]", "Params.sketch5_diameter")
sketch5.setExpression("Constraints[20]", "Params.sketch5_diameter2")
pocket4 = body.newObject("PartDesign::Pocket", "Pocket003")
pocket4.Profile = sketch5
pocket4.Type = "ThroughAll"
pocket4.Reversed = True
doc.recompute()

datumplane = body.newObject("PartDesign::Plane", "DatumPlane")
datumplane.AttachmentSupport = (doc.getObject("XY_Plane"), [""])
datumplane.MapMode = "FlatFace"
datumplane.AttachmentOffset = App.Placement(App.Vector(0, 0, -27.413), App.Rotation())
mirrored = body.newObject("PartDesign::Mirrored", "Mirrored")
mirrored.Originals = [pocket1, pocket2, pocket3, pocket4]
mirrored.MirrorPlane = (datumplane, [""])
body.Tip = mirrored
doc.recompute()

fillet = body.newObject("PartDesign::Fillet", "Fillet")
fillet.Base = (mirrored, edges_at(mirrored, [(-2.657, 2, 69.587)]))
fillet.setExpression("Radius", "Params.fillet_radius")
doc.recompute()

fillet2 = body.newObject("PartDesign::Fillet", "Fillet001")
fillet2.Base = (fillet, edges_at(fillet, [(-36.657, 2, 69.587)]))
fillet2.setExpression("Radius", "Params.fillet2_radius")
doc.recompute()

fillet3 = body.newObject("PartDesign::Fillet", "Fillet002")
fillet3.Base = (fillet2, edges_at(fillet2, [(-2.657, 2, -124.413)]))
fillet3.setExpression("Radius", "Params.fillet3_radius")
doc.recompute()

fillet4 = body.newObject("PartDesign::Fillet", "Fillet003")
fillet4.Base = (fillet3, edges_at(fillet3, [(-36.657, 2, -124.413)]))
fillet4.setExpression("Radius", "Params.fillet4_radius")

doc.recompute()
